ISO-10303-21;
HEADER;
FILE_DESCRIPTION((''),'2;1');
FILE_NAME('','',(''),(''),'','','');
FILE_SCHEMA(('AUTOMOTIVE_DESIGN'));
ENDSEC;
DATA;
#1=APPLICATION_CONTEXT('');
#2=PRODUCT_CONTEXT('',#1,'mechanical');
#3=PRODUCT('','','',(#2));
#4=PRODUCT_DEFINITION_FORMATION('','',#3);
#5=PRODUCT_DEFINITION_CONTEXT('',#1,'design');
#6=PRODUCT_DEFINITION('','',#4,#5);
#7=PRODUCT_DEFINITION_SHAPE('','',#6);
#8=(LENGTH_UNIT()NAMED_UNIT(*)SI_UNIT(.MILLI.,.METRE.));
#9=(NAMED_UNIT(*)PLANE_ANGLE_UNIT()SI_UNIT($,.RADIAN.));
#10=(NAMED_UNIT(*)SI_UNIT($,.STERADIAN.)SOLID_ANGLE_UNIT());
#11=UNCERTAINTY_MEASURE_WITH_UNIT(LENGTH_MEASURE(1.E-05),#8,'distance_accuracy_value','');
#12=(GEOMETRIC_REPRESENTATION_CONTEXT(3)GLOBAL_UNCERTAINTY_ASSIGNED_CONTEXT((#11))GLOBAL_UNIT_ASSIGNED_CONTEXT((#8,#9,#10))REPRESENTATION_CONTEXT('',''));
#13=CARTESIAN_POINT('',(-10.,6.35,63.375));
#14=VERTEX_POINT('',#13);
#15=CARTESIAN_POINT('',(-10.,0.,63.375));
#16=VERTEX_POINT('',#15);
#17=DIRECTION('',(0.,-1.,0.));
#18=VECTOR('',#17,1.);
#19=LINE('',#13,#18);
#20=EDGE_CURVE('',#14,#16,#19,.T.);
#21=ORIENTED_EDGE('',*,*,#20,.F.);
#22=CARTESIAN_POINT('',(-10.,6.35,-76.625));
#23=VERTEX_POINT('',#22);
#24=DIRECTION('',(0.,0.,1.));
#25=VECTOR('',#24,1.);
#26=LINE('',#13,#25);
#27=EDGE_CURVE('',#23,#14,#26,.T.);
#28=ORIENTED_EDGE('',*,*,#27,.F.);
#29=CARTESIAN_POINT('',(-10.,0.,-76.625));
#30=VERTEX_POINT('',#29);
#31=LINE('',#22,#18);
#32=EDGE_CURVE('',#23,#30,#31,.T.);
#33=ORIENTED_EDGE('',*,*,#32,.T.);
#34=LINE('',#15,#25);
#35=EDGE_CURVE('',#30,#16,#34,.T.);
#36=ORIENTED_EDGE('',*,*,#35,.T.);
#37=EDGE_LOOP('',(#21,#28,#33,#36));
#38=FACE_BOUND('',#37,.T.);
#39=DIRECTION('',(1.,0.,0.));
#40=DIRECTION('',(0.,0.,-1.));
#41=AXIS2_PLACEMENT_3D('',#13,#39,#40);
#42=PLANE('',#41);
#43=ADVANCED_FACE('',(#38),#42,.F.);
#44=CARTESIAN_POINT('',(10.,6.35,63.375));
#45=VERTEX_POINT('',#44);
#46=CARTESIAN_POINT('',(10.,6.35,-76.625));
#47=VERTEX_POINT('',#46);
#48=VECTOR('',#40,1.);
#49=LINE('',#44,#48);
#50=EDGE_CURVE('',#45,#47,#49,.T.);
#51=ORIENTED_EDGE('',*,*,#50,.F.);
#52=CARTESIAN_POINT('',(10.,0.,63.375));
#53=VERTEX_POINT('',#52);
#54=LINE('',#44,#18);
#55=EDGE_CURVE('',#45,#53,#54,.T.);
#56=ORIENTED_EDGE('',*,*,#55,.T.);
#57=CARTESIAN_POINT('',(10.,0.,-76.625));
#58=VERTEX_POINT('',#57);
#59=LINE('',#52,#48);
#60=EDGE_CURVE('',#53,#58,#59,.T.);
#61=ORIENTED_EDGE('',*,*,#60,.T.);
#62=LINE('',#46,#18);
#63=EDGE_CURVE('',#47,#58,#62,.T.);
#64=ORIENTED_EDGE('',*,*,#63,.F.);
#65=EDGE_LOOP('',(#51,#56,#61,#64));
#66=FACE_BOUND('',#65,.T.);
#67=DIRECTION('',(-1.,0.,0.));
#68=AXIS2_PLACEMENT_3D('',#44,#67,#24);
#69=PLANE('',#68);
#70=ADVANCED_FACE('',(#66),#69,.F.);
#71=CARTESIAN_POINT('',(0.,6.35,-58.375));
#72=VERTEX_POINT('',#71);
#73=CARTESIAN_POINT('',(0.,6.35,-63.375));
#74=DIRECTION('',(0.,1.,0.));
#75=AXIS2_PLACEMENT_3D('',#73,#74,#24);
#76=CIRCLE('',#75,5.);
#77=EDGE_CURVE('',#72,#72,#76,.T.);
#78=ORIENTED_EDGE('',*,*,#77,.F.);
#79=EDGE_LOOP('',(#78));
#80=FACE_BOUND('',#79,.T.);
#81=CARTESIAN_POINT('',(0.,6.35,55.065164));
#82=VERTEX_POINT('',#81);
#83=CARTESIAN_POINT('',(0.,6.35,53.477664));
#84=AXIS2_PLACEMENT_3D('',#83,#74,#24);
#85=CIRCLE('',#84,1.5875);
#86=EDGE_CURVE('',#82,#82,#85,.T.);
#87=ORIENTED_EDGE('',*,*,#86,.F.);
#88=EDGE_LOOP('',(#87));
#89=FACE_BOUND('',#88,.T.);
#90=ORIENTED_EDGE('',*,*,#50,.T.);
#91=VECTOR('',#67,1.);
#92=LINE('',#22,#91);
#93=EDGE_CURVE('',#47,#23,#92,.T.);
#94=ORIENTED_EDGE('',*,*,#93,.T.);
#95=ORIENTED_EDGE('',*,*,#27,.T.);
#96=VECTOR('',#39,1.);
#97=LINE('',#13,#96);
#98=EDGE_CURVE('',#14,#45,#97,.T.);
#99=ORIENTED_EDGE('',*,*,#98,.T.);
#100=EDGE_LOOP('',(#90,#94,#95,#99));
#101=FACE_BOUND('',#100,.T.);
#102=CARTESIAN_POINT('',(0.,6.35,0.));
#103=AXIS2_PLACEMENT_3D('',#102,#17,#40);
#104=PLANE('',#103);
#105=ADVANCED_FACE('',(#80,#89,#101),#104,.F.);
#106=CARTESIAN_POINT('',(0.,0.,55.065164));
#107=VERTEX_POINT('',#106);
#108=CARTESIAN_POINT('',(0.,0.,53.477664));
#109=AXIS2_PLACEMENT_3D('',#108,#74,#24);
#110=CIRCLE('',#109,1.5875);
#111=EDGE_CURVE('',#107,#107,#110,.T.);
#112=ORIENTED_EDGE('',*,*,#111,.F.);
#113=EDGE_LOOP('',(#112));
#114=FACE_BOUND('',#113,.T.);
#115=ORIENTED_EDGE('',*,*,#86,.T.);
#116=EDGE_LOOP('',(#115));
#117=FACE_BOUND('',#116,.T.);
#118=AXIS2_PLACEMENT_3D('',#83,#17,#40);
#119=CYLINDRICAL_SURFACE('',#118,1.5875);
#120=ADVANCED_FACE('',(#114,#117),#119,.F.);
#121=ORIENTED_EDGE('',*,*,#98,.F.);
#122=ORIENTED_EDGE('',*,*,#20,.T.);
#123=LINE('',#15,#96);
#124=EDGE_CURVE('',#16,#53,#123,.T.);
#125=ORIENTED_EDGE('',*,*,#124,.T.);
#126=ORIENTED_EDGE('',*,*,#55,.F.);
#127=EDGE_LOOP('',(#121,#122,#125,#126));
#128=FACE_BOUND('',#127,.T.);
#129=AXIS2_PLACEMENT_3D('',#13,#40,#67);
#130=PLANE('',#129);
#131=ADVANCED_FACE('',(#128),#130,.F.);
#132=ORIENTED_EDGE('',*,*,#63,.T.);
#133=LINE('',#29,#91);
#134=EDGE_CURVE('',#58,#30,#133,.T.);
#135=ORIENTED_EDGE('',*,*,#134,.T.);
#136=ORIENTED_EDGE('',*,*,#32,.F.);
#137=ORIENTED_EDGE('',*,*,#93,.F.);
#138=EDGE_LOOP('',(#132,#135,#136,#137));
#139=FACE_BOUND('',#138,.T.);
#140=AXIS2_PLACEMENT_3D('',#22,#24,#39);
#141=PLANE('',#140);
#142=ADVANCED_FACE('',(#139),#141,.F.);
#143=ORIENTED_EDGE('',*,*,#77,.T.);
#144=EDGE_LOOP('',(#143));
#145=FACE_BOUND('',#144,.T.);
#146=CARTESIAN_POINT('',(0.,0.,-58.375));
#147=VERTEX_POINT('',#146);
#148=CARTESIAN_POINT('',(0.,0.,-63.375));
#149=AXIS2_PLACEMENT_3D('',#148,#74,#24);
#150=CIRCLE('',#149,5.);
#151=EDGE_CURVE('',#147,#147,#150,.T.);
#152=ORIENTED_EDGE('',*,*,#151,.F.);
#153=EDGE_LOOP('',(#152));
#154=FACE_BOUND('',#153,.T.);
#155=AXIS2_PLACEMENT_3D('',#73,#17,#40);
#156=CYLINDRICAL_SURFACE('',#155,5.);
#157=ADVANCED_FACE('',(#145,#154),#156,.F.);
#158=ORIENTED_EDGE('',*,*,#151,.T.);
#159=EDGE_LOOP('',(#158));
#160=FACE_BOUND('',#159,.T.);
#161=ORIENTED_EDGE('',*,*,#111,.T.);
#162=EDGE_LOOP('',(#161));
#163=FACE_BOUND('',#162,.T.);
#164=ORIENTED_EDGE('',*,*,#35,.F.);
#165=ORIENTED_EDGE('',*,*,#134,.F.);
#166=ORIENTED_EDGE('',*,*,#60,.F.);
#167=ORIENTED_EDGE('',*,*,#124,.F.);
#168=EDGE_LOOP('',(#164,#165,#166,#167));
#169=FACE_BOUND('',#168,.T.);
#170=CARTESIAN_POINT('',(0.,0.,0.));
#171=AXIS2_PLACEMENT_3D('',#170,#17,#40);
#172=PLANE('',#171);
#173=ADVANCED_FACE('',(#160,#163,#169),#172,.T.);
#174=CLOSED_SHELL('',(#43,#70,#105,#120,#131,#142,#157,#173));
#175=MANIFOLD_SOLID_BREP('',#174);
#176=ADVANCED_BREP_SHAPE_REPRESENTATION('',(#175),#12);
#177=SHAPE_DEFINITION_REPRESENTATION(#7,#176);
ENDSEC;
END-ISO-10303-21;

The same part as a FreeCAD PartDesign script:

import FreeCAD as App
import Part
import Sketcher

doc = App.newDocument("Part")
params = doc.addObject("Spreadsheet::Sheet", "Params")
for row, (alias, value) in enumerate([
    ("sketch1_diameter", "10 mm"),
    ("sketch1_width", "20 mm"),
    ("sketch1_height", "140 mm"),
    ("pad1_length", "6.35 mm"),
], start=1):
    params.set(f"A{row}", alias)
    params.set(f"B{row}", "=" + value)
    params.setAlias(f"B{row}", alias)

body = doc.addObject("PartDesign::Body", "Body")

# Sketch on XZ plane
sketch1 = body.newObject("Sketcher::SketchObject", "Sketch")
sketch1.AttachmentSupport = (doc.getObject("XZ_Plane"), [""])
sketch1.MapMode = "FlatFace"
sketch1.addGeometry(Part.LineSegment(App.Vector(-10, -76.625, 0), App.Vector(-10, 63.375, 0)), False)
sketch1.addGeometry(Part.LineSegment(App.Vector(-10, 63.375, 0), App.Vector(10, 63.375, 0)), False)
sketch1.addGeometry(Part.LineSegment(App.Vector(10, 63.375, 0), App.Vector(10, -76.625, 0)), False)
sketch1.addGeometry(Part.LineSegment(App.Vector(10, -76.625, 0), App.Vector(-10, -76.625, 0)), False)
sketch1.addGeometry(Part.Circle(App.Vector(0, 53.477664, 0), App.Vector(0, 0, 1), 1.5875), False)
sketch1.addGeometry(Part.Circle(App.Vector(0, -63.375, 0), App.Vector(0, 0, 1), 5), False)
sketch1.addConstraint(Sketcher.Constraint("Coincident", 0, 2, 1, 1))
sketch1.addConstraint(Sketcher.Constraint("Coincident", 1, 2, 2, 1))
sketch1.addConstraint(Sketcher.Constraint("Coincident", 2, 2, 3, 1))
sketch1.addConstraint(Sketcher.Constraint("Coincident", 3, 2, 0, 1))
sketch1.addConstraint(Sketcher.Constraint("Vertical", 0))
sketch1.addConstraint(Sketcher.Constraint("Horizontal", 1))
sketch1.addConstraint(Sketcher.Constraint("Vertical", 2))
sketch1.addConstraint(Sketcher.Constraint("Horizontal", 3))
sketch1.addConstraint(Sketcher.Constraint("PointOnObject", 4, 3, -2))
sketch1.addConstraint(Sketcher.Constraint("PointOnObject", 5, 3, -2))
sketch1.addConstraint(Sketcher.Constraint("Diameter", 5, 10.0))
sketch1.addConstraint(Sketcher.Constraint("DistanceX", 1, 1, 1, 2, 20.0))
sketch1.addConstraint(Sketcher.Constraint("DistanceY", 0, 1, 0, 2, 140.0))
sketch1.addConstraint(Sketcher.Constraint("Diameter", 4, 3.175))
sketch1.addConstraint(Sketcher.Constraint("DistanceX", 0, 2, -1, 1, 10.0))
sketch1.addConstraint(Sketcher.Constraint("DistanceY", 5, 3, 0, 2, 126.75))
sketch1.addConstraint(Sketcher.Constraint("DistanceY", 5, 3, -1, 1, 63.375))
sketch1.addConstraint(Sketcher.Constraint("DistanceY", -1, 1, 4, 3, 53.477664))
sketch1.setExpression("Constraints[10]", "Params.sketch1_diameter")
sketch1.setExpression("Constraints[11]", "Params.sketch1_width")
sketch1.setExpression("Constraints[12]", "Params.sketch1_height")
pad1 = body.newObject("PartDesign::Pad", "Pad")
pad1.Profile = sketch1
pad1.setExpression("Length", "Params.pad1_length")
pad1.Reversed = True

doc.recompute()
